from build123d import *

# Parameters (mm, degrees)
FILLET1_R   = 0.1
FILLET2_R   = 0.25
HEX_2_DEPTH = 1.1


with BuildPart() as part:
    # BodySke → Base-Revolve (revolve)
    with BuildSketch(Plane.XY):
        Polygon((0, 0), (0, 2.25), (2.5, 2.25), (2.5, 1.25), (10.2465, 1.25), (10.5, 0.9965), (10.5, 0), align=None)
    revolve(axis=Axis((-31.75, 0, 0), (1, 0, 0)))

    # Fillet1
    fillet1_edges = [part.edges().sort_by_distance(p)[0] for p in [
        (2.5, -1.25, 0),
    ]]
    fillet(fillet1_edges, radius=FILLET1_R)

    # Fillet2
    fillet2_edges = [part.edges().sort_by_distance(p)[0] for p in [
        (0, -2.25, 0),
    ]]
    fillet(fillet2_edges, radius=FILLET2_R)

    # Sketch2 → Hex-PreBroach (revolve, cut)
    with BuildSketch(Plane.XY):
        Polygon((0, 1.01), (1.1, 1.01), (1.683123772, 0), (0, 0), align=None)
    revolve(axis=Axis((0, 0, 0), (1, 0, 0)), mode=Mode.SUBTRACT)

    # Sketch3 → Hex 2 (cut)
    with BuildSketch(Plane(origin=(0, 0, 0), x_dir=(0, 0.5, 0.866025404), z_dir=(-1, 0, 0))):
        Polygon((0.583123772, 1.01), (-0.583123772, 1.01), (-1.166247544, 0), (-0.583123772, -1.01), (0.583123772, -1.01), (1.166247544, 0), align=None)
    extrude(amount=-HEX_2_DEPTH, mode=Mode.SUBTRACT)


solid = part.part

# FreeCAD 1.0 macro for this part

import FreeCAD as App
import Part
import Sketcher

V = App.Vector
Q = App.Units.Quantity


def edges_at(feature, points):
    """Names of the edges that pass closest to the given points."""
    edges = feature.Shape.Edges
    near = lambda p: min(range(len(edges)), key=lambda i: edges[i].distToShape(Part.Vertex(*p))[0])
    return sorted({f"Edge{near(p) + 1}" for p in points})

doc = App.newDocument("Part")
body = doc.addObject("PartDesign::Body", "Body")

# Sketch on XY plane
sketch1 = body.newObject("Sketcher::SketchObject", "Sketch")
sketch1.AttachmentSupport = (doc.getObject("XY_Plane"), [""])
sketch1.MapMode = "FlatFace"
sketch1.addGeometry([
    Part.LineSegment(V(0, 2.25, 0), V(0, 0, 0)),  # 0
    Part.LineSegment(V(0, 0, 0), V(10.5, 0, 0)),  # 1
    Part.LineSegment(V(10.5, 0, 0), V(10.5, 1, 0)),  # 2
    Part.LineSegment(V(10.5, 1, 0), V(10.25, 1.25, 0)),  # 3
    Part.LineSegment(V(10.25, 1.25, 0), V(2.5, 1.25, 0)),  # 4
    Part.LineSegment(V(2.5, 1.25, 0), V(2.5, 2.25, 0)),  # 5
    Part.LineSegment(V(2.5, 2.25, 0), V(0, 2.25, 0)),  # 6
], False)
sketch1.addConstraint([
    Sketcher.Constraint("Coincident", 0, 2, 1, 1),
    Sketcher.Constraint("Coincident", 1, 2, 2, 1),
    Sketcher.Constraint("Coincident", 2, 2, 3, 1),
    Sketcher.Constraint("Coincident", 3, 2, 4, 1),
    Sketcher.Constraint("Coincident", 4, 2, 5, 1),
    Sketcher.Constraint("Coincident", 5, 2, 6, 1),
    Sketcher.Constraint("Coincident", 6, 2, 0, 1),
    Sketcher.Constraint("Vertical", 0),
    Sketcher.Constraint("Horizontal", 1),
    Sketcher.Constraint("Vertical", 2),
    Sketcher.Constraint("Horizontal", 4),
    Sketcher.Constraint("Vertical", 5),
    Sketcher.Constraint("Horizontal", 6),
    Sketcher.Constraint("Coincident", 0, 2, -1, 1),
    Sketcher.Constraint("DistanceY", 5, 1, 5, 2, 1.0),
    Sketcher.Constraint("Angle", 3, Q("135 deg")),
    Sketcher.Constraint("DistanceX", 1, 1, 1, 2, 10.5),
    Sketcher.Constraint("DistanceX", 6, 2, 6, 1, 2.5),
    Sketcher.Constraint("DistanceY", 0, 2, 0, 1, 2.25),
    Sketcher.Constraint("DistanceX", 4, 2, 4, 1, 7.7465),
])
revolution = body.newObject("PartDesign::Revolution", "Revolution")
revolution.Profile = sketch1
revolution.ReferenceAxis = (sketch1, ["H_Axis"])
revolution.Angle = 360
doc.recompute()

fillet = body.newObject("PartDesign::Fillet", "Fillet")
fillet.Base = (revolution, edges_at(revolution, [(2.5, -1.25, 0)]))
fillet.Radius = 0.1
doc.recompute()

fillet2 = body.newObject("PartDesign::Fillet", "Fillet001")
fillet2.Base = (fillet, edges_at(fillet, [(0, -2.25, 0)]))
fillet2.Radius = 0.25

# Sketch on XY plane
sketch2 = body.newObject("Sketcher::SketchObject", "Sketch001")
sketch2.AttachmentSupport = (doc.getObject("XY_Plane"), [""])
sketch2.MapMode = "FlatFace"
sketch2.addGeometry([
    Part.LineSegment(V(1.1, 1, 0), V(0, 1, 0)),
    Part.LineSegment(V(0, 1, 0), V(0, 0, 0)),
    Part.LineSegment(V(0, 0, 0), V(1.7, 0, 0)),
    Part.LineSegment(V(1.7, 0, 0), V(1.1, 1, 0)),
], False)
sketch2.addConstraint([
    Sketcher.Constraint("Coincident", 0, 2, 1, 1),
    Sketcher.Constraint("Coincident", 1, 2, 2, 1),
    Sketcher.Constraint("Coincident", 2, 2, 3, 1),
    Sketcher.Constraint("Coincident", 3, 2, 0, 1),
    Sketcher.Constraint("Horizontal", 0),
    Sketcher.Constraint("Vertical", 1),
    Sketcher.Constraint("Horizontal", 2),
    Sketcher.Constraint("Coincident", 1, 2, -1, 1),
    Sketcher.Constraint("Angle", 3, Q("120 deg")),
    Sketcher.Constraint("DistanceX", 0, 2, 0, 1, 1.1),
    Sketcher.Constraint("DistanceY", 1, 2, 1, 1, 1.01),
])
groove = body.newObject("PartDesign::Groove", "Groove")
groove.Profile = sketch2
groove.ReferenceAxis = (sketch2, ["H_Axis"])
groove.Angle = 360

# Sketch on YZ plane
sketch3 = body.newObject("Sketcher::SketchObject", "Sketch002")
sketch3.AttachmentSupport = (doc.getObject("YZ_Plane"), [""])
sketch3.MapMode = "FlatFace"
sketch3.addGeometry([
    Part.LineSegment(V(1.2, 0, 0), V(0.6, -1, 0)),  # 0
    Part.LineSegment(V(0.6, -1, 0), V(-0.6, -1, 0)),  # 1
    Part.LineSegment(V(-0.6, -1, 0), V(-1.2, 0, 0)),  # 2
    Part.LineSegment(V(-1.2, 0, 0), V(-0.6, 1, 0)),  # 3
    Part.LineSegment(V(-0.6, 1, 0), V(0.6, 1, 0)),  # 4
    Part.LineSegment(V(0.6, 1, 0), V(1.2, 0, 0)),  # 5
], False)
sketch3.addConstraint([
    Sketcher.Constraint("Coincident", 0, 2, 1, 1),
    Sketcher.Constraint("Coincident", 1, 2, 2, 1),
    Sketcher.Constraint("Coincident", 2, 2, 3, 1),
    Sketcher.Constraint("Coincident", 3, 2, 4, 1),
    Sketcher.Constraint("Coincident", 4, 2, 5, 1),
    Sketcher.Constraint("Coincident", 5, 2, 0, 1),
    Sketcher.Constraint("Horizontal", 1),
    Sketcher.Constraint("Horizontal", 4),
    Sketcher.Constraint("Symmetric", 0, 2, 3, 2, -1, 1),
    Sketcher.Constraint("Symmetric", 2, 2, 5, 2, -1, 1),
    Sketcher.Constraint("PointOnObject", 2, 2, -1),
    Sketcher.Constraint("Parallel", 2, 5),
    Sketcher.Constraint("Vertical", 1, 2, 3, 2),
    Sketcher.Constraint("Angle", 0, Q("-120 deg")),
    Sketcher.Constraint("DistanceY", 0, 2, -1, 1, 1.01),
    Sketcher.Constraint("DistanceX", 1, 2, 1, 1, 1.166248),
])
pocket1 = body.newObject("PartDesign::Pocket", "Pocket")
pocket1.Profile = sketch3
pocket1.Length = 1.1
pocket1.Reversed = True

doc.recompute()
